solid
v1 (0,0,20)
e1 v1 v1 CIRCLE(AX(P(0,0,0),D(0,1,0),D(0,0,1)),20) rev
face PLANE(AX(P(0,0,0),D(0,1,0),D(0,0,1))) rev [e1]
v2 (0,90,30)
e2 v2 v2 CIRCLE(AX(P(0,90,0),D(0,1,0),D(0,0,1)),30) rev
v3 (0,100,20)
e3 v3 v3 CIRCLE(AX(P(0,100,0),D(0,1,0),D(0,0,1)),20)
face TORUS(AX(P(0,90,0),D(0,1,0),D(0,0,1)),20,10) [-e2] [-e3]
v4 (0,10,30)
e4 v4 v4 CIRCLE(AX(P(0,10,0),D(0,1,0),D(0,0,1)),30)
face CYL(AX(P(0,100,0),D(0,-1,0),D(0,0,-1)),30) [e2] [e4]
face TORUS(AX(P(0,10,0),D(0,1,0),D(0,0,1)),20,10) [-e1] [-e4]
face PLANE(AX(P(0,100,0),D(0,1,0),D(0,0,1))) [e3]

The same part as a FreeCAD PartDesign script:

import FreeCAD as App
import Part
import Sketcher

V = App.Vector


def edges_at(feature, points):
    """Names of the edges that pass closest to the given points."""
    edges = feature.Shape.Edges
    near = lambda p: min(range(len(edges)), key=lambda i: edges[i].distToShape(Part.Vertex(*p))[0])
    return sorted({f"Edge{near(p) + 1}" for p in points})

doc = App.newDocument("Part")
body = doc.addObject("PartDesign::Body", "Body")

# Sketch on XZ plane
sketch1 = doc.addObject("Sketcher::SketchObject", "Sketch")
body.addObject(sketch1)
sketch1.AttachmentSupport = (doc.XZ_Plane, [""])
sketch1.MapMode = "FlatFace"
sketch1.addGeometry(Part.Circle(V(0, 0, 0), V(0, 0, 1), 30), False)
sketch1.addConstraint(Sketcher.Constraint("Coincident", 0, 3, -1, 1))
sketch1.addConstraint(Sketcher.Constraint("Diameter", 0, 60.0))
pad1 = doc.addObject("PartDesign::Pad", "Pad")
body.addObject(pad1)
pad1.Profile = sketch1
pad1.Length = 100
pad1.Reversed = True
doc.recompute()

fillet = doc.addObject("PartDesign::Fillet", "Fillet")
body.addObject(fillet)
fillet.Base = (pad1, edges_at(pad1, [(0, 0, -30), (0, 100, -30)]))
fillet.Radius = 10

doc.recompute()
